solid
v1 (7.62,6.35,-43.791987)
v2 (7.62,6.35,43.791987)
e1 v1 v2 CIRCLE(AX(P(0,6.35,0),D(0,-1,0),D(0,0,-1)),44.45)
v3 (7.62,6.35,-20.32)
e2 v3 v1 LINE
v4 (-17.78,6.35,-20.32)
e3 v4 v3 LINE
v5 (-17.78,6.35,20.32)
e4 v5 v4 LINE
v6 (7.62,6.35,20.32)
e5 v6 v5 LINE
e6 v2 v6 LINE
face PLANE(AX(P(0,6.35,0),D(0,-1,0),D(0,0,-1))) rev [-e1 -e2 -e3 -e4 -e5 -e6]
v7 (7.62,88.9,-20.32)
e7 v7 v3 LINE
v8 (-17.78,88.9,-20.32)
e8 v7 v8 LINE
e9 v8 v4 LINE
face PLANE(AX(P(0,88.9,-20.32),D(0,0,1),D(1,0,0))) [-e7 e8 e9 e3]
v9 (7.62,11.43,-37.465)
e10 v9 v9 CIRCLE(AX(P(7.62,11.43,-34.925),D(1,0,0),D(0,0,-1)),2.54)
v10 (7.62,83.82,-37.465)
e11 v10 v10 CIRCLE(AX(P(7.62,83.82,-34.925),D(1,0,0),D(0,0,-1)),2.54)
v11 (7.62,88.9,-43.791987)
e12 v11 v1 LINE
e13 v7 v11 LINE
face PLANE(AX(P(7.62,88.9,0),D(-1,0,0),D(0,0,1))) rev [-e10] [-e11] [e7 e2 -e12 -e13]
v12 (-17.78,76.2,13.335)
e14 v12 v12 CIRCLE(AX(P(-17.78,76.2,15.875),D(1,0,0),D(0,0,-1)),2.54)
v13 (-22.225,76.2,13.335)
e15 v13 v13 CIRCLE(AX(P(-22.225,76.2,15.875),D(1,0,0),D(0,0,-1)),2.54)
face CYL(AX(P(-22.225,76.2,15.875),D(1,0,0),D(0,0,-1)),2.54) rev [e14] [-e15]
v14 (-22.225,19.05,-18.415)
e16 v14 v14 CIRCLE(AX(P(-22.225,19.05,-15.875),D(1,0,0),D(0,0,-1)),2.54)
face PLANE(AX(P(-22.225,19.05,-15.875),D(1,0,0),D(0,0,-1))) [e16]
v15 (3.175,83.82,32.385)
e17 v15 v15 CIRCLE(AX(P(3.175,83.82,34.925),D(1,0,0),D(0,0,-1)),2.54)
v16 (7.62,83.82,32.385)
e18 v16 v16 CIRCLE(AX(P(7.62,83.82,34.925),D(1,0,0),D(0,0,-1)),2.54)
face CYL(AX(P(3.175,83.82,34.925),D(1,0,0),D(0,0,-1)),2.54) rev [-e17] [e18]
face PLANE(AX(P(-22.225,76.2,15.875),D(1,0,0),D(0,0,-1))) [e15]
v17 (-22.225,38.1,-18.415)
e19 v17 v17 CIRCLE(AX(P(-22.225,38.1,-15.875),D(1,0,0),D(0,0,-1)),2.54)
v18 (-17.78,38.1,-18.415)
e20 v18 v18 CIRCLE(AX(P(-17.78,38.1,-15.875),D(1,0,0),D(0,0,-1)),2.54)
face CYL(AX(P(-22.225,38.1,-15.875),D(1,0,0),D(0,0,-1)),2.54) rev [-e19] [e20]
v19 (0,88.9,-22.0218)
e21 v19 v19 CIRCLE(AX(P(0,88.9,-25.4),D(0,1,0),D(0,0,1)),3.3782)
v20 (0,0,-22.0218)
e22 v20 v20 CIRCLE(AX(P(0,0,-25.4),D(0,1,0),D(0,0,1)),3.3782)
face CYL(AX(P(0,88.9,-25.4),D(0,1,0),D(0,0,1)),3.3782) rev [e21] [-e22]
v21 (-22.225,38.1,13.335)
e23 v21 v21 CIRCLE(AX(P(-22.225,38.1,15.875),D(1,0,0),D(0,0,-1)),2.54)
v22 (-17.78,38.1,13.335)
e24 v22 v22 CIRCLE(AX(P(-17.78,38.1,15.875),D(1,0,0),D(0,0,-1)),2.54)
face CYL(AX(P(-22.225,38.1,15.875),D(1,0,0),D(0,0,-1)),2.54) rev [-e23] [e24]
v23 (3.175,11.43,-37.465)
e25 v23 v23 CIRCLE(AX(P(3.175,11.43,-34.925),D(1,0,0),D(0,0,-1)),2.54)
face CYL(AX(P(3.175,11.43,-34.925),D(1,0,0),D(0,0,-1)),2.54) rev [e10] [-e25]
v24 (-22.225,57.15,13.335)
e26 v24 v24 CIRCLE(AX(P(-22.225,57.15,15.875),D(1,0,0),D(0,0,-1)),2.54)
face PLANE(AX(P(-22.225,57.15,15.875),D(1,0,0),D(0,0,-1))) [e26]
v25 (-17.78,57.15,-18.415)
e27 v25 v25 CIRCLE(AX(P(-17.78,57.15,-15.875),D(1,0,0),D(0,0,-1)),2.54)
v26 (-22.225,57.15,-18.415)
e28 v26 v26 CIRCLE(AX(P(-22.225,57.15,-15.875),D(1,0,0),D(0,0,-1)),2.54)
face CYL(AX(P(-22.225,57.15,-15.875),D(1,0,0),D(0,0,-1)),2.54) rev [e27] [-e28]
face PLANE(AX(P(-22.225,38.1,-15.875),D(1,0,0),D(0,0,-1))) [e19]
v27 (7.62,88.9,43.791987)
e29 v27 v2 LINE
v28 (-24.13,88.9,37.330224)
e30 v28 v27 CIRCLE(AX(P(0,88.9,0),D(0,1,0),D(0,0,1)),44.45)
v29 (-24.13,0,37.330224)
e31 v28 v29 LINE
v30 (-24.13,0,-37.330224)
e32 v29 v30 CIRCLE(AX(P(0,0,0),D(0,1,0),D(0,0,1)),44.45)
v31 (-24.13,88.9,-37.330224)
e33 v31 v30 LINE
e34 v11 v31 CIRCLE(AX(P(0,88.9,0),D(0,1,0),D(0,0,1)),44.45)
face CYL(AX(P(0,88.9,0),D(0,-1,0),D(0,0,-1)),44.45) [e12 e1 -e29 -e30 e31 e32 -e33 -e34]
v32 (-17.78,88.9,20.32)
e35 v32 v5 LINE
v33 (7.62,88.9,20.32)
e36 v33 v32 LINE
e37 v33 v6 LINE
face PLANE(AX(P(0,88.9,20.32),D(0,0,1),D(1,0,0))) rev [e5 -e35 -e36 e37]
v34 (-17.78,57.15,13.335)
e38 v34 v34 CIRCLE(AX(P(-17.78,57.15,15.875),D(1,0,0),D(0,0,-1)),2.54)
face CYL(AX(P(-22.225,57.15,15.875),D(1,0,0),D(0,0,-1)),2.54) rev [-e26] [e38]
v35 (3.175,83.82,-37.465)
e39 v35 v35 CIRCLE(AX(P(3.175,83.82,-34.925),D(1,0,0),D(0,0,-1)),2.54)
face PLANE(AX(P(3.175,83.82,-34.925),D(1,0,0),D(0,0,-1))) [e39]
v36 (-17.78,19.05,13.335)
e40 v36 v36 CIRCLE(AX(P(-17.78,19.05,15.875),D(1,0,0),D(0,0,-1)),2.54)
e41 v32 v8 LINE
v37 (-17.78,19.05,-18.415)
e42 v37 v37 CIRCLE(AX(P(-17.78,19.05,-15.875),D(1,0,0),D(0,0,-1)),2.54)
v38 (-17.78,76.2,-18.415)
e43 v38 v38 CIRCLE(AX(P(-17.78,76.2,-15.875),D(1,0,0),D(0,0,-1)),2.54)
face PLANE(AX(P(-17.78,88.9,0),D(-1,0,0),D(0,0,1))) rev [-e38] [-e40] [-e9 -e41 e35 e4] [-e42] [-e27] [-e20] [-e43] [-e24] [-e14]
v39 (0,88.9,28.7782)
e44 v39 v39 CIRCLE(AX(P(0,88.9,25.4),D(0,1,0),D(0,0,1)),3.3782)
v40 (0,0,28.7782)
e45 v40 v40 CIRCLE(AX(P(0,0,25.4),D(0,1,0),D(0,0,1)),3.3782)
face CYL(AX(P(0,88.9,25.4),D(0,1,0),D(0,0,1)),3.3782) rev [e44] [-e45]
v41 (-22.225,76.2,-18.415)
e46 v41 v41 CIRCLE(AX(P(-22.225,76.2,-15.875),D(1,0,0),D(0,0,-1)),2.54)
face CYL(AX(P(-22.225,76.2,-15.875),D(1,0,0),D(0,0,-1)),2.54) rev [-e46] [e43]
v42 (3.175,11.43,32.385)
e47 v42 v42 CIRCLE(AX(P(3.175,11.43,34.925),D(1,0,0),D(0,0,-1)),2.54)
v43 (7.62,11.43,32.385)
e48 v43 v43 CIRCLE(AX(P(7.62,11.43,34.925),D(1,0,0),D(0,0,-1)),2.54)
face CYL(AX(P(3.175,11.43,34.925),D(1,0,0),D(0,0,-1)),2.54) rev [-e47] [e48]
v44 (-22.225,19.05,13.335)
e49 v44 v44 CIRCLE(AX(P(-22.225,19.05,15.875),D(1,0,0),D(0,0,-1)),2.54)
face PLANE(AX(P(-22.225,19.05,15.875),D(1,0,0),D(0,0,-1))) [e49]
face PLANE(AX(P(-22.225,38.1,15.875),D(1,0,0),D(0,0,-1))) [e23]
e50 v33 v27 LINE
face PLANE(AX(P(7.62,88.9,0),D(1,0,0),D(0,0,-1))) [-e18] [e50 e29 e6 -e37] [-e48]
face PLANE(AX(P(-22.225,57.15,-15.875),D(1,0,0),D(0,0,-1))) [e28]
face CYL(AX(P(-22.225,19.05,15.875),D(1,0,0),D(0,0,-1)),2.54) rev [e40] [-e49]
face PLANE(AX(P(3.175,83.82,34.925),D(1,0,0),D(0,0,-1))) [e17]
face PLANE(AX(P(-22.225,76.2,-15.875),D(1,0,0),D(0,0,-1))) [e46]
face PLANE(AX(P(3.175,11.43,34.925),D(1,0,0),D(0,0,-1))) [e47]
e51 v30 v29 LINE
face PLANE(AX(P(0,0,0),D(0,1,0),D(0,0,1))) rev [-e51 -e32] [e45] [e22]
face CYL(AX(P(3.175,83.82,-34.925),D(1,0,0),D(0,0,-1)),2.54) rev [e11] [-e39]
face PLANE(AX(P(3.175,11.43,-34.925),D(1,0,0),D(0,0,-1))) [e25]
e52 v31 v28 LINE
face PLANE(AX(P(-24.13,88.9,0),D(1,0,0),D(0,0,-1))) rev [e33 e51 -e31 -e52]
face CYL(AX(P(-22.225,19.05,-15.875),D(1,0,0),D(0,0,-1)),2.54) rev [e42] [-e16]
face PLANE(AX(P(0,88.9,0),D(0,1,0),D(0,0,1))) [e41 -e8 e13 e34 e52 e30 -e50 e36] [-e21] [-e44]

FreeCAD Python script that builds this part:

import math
import FreeCAD as App
import Part
import Sketcher
Q = App.Units.Quantity

doc = App.newDocument("Part")
body = doc.addObject("PartDesign::Body", "Body")

# Sketch on XZ plane
sketch1 = body.newObject("Sketcher::SketchObject", "Sketch")
sketch1.AttachmentSupport = (doc.getObject("XZ_Plane"), [""])
sketch1.MapMode = "FlatFace"
sketch1.addGeometry([
    Part.LineSegment(App.Vector(-17.78, -20.32, 0), App.Vector(7.62, -20.32, 0)),  # 0
    Part.LineSegment(App.Vector(7.62, -20.32, 0), App.Vector(7.62, -43.791987, 0)),  # 1
    Part.ArcOfCircle(Part.Circle(App.Vector(0, 0, 0), App.Vector(0, 0, 1), 44.45), math.radians(-122.87835), math.radians(-80.12911)),  # 2
    Part.LineSegment(App.Vector(-24.13, -37.330224, 0), App.Vector(-24.13, 37.330224, 0)),  # 3
    Part.ArcOfCircle(Part.Circle(App.Vector(0, 0, 0), App.Vector(0, 0, 1), 44.45), math.radians(80.12911), math.radians(122.87835)),  # 4
    Part.LineSegment(App.Vector(7.62, 43.791987, 0), App.Vector(7.62, 20.32, 0)),  # 5
    Part.LineSegment(App.Vector(7.62, 20.32, 0), App.Vector(-17.78, 20.32, 0)),  # 6
    Part.LineSegment(App.Vector(-17.78, 20.32, 0), App.Vector(-17.78, -20.32, 0)),  # 7
], False)
sketch1.addConstraint([
    Sketcher.Constraint("Coincident", 0, 2, 1, 1),
    Sketcher.Constraint("Coincident", 1, 2, 2, 2),
    Sketcher.Constraint("Coincident", 2, 1, 3, 1),
    Sketcher.Constraint("Coincident", 3, 2, 4, 2),
    Sketcher.Constraint("Coincident", 4, 1, 5, 1),
    Sketcher.Constraint("Coincident", 5, 2, 6, 1),
    Sketcher.Constraint("Coincident", 6, 2, 7, 1),
    Sketcher.Constraint("Coincident", 7, 2, 0, 1),
    Sketcher.Constraint("Horizontal", 0),
    Sketcher.Constraint("Vertical", 1),
    Sketcher.Constraint("Vertical", 3),
    Sketcher.Constraint("Vertical", 5),
    Sketcher.Constraint("Horizontal", 6),
    Sketcher.Constraint("Vertical", 7),
    Sketcher.Constraint("Coincident", 2, 3, -1, 1),
    Sketcher.Constraint("Coincident", 4, 3, -1, 1),
    Sketcher.Constraint("Equal", 2, 4),
    Sketcher.Constraint("Symmetric", 0, 2, 5, 2, -1),
    Sketcher.Constraint("DistanceX", 0, 1, 0, 2, Q("1 in")),
    Sketcher.Constraint("Radius", 2, Q("1.75 in")),
    Sketcher.Constraint("DistanceY", 7, 2, 7, 1, Q("1.6 in")),
    Sketcher.Constraint("DistanceX", -1, 1, 0, 2, Q("0.3 in")),
    Sketcher.Constraint("DistanceX", 2, 1, -1, 1, Q("0.95 in")),
])
pad1 = body.newObject("PartDesign::Pad", "Pad")
pad1.Profile = sketch1
pad1.Length = Q("3.5 in")
pad1.Reversed = True

# Sketch on YZ plane
sketch2 = body.newObject("Sketcher::SketchObject", "Sketch001")
sketch2.AttachmentSupport = (doc.getObject("YZ_Plane"), [""])
sketch2.MapMode = "FlatFace"
sketch2.AttachmentOffset = App.Placement(App.Vector(0, 0, -0.7 * 25.4), App.Rotation())
sketch2.addGeometry([
    Part.Circle(App.Vector(76.2, 15.875, 0), App.Vector(0, 0, 1), 2.54),  # 0
    Part.Circle(App.Vector(76.2, -15.875, 0), App.Vector(0, 0, 1), 2.54),  # 1
    Part.Circle(App.Vector(57.15, 15.875, 0), App.Vector(0, 0, 1), 2.54),  # 2
    Part.Circle(App.Vector(57.15, -15.875, 0), App.Vector(0, 0, 1), 2.54),  # 3
    Part.Circle(App.Vector(38.1, 15.875, 0), App.Vector(0, 0, 1), 2.54),  # 4
    Part.Circle(App.Vector(38.1, -15.875, 0), App.Vector(0, 0, 1), 2.54),  # 5
    Part.Circle(App.Vector(19.05, 15.875, 0), App.Vector(0, 0, 1), 2.54),  # 6
    Part.Circle(App.Vector(19.05, -15.875, 0), App.Vector(0, 0, 1), 2.54),  # 7
], False)
sketch2.addConstraint([
    Sketcher.Constraint("Equal", 0, 1),
    Sketcher.Constraint("Equal", 1, 2),
    Sketcher.Constraint("Equal", 2, 3),
    Sketcher.Constraint("Equal", 3, 4),
    Sketcher.Constraint("Equal", 4, 5),
    Sketcher.Constraint("Equal", 5, 6),
    Sketcher.Constraint("Equal", 6, 7),
    Sketcher.Constraint("Symmetric", 0, 3, 1, 3, -1),
    Sketcher.Constraint("Symmetric", 2, 3, 3, 3, -1),
    Sketcher.Constraint("Symmetric", 4, 3, 5, 3, -1),
    Sketcher.Constraint("Symmetric", 6, 3, 7, 3, -1),
    Sketcher.Constraint("Horizontal", 0, 3, 2, 3),
    Sketcher.Constraint("Horizontal", 2, 3, 4, 3),
    Sketcher.Constraint("Horizontal", 4, 3, 6, 3),
    Sketcher.Constraint("Diameter", 0, Q("0.2 in")),
    Sketcher.Constraint("DistanceX", -1, 1, 0, 3, Q("3 in")),
    Sketcher.Constraint("DistanceX", -1, 1, 4, 3, Q("1.5 in")),
    Sketcher.Constraint("DistanceX", 6, 3, 2, 3, Q("1.5 in")),
    Sketcher.Constraint("DistanceX", -1, 1, 2, 3, Q("2.25 in")),
    Sketcher.Constraint("DistanceY", 1, 3, 0, 3, Q("1.25 in")),
])
pocket1 = body.newObject("PartDesign::Pocket", "Pocket")
pocket1.Profile = sketch2
pocket1.Length = Q("0.175 in")

# Sketch on XZ plane
sketch3 = body.newObject("Sketcher::SketchObject", "Sketch002")
sketch3.AttachmentSupport = (doc.getObject("XZ_Plane"), [""])
sketch3.MapMode = "FlatFace"
sketch3.AttachmentOffset = App.Placement(App.Vector(0, 0, -3.5 * 25.4), App.Rotation())
sketch3.addGeometry([
    Part.Circle(App.Vector(0, 25.4, 0), App.Vector(0, 0, 1), 3.3782),
    Part.Circle(App.Vector(0, -25.4, 0), App.Vector(0, 0, 1), 3.3782),
], False)
sketch3.addConstraint([
    Sketcher.Constraint("Equal", 0, 1),
    Sketcher.Constraint("Symmetric", 0, 3, 1, 3, -1, 1),
    Sketcher.Constraint("PointOnObject", 0, 3, -2),
    Sketcher.Constraint("Diameter", 0, Q("0.266 in")),
    Sketcher.Constraint("DistanceY", -1, 1, 0, 3, Q("1 in")),
])
doc.recompute()
hole = body.newObject("PartDesign::Hole", "Hole")
hole.Profile = sketch3
hole.ThreadType = "None"
hole.Diameter = Q("0.266 in")
hole.DepthType = "ThroughAll"
hole.Reversed = True

# Sketch on XZ plane
sketch4 = body.newObject("Sketcher::SketchObject", "Sketch003")
sketch4.AttachmentSupport = (doc.getObject("XZ_Plane"), [""])
sketch4.MapMode = "FlatFace"
sketch4.addGeometry([
    Part.LineSegment(App.Vector(7.62, -20.32, 0), App.Vector(7.62, -43.791987, 0)),  # 0
    Part.ArcOfCircle(Part.Circle(App.Vector(0, 0, 0), App.Vector(0, 0, 1), 44.45), math.radians(-80.12911), math.radians(80.12911)),  # 1
    Part.LineSegment(App.Vector(7.62, 43.791987, 0), App.Vector(7.62, 20.32, 0)),  # 2
    Part.LineSegment(App.Vector(7.62, 20.32, 0), App.Vector(-17.78, 20.32, 0)),  # 3
    Part.LineSegment(App.Vector(-17.78, 20.32, 0), App.Vector(-17.78, -20.32, 0)),  # 4
    Part.LineSegment(App.Vector(-17.78, -20.32, 0), App.Vector(7.62, -20.32, 0)),  # 5
], False)
sketch4.addConstraint([
    Sketcher.Constraint("Coincident", 0, 2, 1, 1),
    Sketcher.Constraint("Coincident", 1, 2, 2, 1),
    Sketcher.Constraint("Coincident", 2, 2, 3, 1),
    Sketcher.Constraint("Coincident", 3, 2, 4, 1),
    Sketcher.Constraint("Coincident", 4, 2, 5, 1),
    Sketcher.Constraint("Coincident", 5, 2, 0, 1),
    Sketcher.Constraint("Vertical", 0),
    Sketcher.Constraint("Vertical", 2),
    Sketcher.Constraint("Horizontal", 3),
    Sketcher.Constraint("Vertical", 4),
    Sketcher.Constraint("Horizontal", 5),
    Sketcher.Constraint("Coincident", 1, 3, -1, 1),
    Sketcher.Constraint("Symmetric", 2, 2, 5, 2, -1),
    Sketcher.Constraint("DistanceX", 3, 2, 3, 1, Q("1 in")),
    Sketcher.Constraint("Radius", 1, Q("1.75 in")),
    Sketcher.Constraint("DistanceY", 4, 2, 4, 1, Q("1.6 in")),
    Sketcher.Constraint("DistanceX", -1, 1, 0, 2, Q("0.3 in")),
])
pad2 = body.newObject("PartDesign::Pad", "Pad001")
pad2.Profile = sketch4
pad2.Length = Q("0.25 in")
pad2.Reversed = True

# Sketch on YZ plane
sketch5 = body.newObject("Sketcher::SketchObject", "Sketch004")
sketch5.AttachmentSupport = (doc.getObject("YZ_Plane"), [""])
sketch5.MapMode = "FlatFace"
sketch5.AttachmentOffset = App.Placement(App.Vector(0, 0, 0.3 * 25.4), App.Rotation())
sketch5.addGeometry([
    Part.Circle(App.Vector(83.82, 34.925, 0), App.Vector(0, 0, 1), 2.54),
    Part.Circle(App.Vector(83.82, -34.925, 0), App.Vector(0, 0, 1), 2.54),
    Part.Circle(App.Vector(11.43, 34.925, 0), App.Vector(0, 0, 1), 2.54),
    Part.Circle(App.Vector(11.43, -34.925, 0), App.Vector(0, 0, 1), 2.54),
], False)
sketch5.addConstraint([
    Sketcher.Constraint("Equal", 0, 1),
    Sketcher.Constraint("Equal", 1, 2),
    Sketcher.Constraint("Equal", 2, 3),
    Sketcher.Constraint("Symmetric", 0, 3, 1, 3, -1),
    Sketcher.Constraint("Symmetric", 2, 3, 3, 3, -1),
    Sketcher.Constraint("Horizontal", 0, 3, 2, 3),
    Sketcher.Constraint("Diameter", 0, Q("0.2 in")),
    Sketcher.Constraint("DistanceX", -1, 1, 0, 3, Q("3.3 in")),
    Sketcher.Constraint("DistanceX", -1, 1, 2, 3, Q("0.45 in")),
    Sketcher.Constraint("DistanceY", 1, 3, 0, 3, Q("2.75 in")),
])
pocket2 = body.newObject("PartDesign::Pocket", "Pocket001")
pocket2.Profile = sketch5
pocket2.Length = Q("0.175 in")

doc.recompute()
